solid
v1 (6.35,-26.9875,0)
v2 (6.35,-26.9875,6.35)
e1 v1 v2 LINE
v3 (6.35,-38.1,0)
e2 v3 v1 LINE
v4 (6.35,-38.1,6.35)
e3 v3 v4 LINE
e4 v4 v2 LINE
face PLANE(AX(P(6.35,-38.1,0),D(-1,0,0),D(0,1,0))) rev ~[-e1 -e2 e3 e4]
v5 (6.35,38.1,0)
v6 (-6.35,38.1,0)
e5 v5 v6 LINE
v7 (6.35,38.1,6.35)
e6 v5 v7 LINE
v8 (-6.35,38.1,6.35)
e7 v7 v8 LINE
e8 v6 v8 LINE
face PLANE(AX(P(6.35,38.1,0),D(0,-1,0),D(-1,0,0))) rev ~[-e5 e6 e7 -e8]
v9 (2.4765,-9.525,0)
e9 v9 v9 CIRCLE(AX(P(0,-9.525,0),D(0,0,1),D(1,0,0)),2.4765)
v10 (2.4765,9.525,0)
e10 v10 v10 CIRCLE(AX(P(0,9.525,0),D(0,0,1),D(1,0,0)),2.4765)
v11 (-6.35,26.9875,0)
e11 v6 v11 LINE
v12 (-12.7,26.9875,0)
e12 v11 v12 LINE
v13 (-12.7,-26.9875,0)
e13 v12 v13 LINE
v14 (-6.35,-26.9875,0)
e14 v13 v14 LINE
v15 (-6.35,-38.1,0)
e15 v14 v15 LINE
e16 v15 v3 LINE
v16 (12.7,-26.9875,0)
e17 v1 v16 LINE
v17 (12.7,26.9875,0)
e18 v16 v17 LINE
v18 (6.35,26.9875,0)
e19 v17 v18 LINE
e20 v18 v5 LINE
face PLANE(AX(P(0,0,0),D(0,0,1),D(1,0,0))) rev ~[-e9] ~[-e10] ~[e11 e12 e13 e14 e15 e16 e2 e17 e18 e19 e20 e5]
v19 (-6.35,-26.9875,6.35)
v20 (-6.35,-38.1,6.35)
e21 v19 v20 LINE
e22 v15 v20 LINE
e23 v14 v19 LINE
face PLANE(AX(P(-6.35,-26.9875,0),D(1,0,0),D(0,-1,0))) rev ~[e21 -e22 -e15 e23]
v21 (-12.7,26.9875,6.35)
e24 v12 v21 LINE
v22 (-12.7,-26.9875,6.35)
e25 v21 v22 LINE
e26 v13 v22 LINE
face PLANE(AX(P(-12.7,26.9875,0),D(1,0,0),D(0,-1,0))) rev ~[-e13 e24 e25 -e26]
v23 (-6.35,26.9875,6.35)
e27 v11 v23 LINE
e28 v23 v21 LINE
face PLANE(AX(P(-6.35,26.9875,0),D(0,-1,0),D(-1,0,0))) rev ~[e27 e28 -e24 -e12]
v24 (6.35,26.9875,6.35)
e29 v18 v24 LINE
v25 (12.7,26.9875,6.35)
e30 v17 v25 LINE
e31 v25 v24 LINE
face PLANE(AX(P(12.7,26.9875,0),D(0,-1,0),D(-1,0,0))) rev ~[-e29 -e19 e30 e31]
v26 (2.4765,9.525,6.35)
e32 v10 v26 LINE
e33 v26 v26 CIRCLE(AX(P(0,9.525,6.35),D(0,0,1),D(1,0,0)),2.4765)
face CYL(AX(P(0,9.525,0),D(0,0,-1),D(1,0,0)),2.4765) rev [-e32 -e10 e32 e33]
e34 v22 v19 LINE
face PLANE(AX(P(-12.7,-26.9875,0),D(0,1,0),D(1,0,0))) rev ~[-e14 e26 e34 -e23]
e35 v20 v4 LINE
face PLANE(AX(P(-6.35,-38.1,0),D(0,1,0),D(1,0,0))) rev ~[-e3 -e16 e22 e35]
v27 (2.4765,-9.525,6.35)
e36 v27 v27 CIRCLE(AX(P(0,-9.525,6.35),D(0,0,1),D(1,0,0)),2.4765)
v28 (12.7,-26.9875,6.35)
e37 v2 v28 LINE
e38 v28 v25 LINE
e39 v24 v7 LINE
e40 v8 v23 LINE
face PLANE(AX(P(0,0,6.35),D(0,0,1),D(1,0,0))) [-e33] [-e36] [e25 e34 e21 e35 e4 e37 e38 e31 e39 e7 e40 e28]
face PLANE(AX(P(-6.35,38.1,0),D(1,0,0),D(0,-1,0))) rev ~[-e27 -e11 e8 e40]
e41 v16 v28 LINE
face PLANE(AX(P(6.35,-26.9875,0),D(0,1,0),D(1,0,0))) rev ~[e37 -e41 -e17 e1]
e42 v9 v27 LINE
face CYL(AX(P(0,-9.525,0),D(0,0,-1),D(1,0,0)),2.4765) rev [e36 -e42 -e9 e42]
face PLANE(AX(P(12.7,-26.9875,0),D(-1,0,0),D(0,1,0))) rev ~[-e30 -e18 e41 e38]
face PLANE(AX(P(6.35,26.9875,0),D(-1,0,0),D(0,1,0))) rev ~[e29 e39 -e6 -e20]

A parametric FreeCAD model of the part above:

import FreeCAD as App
import Part
import Sketcher
from FreeCAD import Vector
Q = App.Units.Quantity


def add_polygon(sketch, points):
    """Adds a closed chain of lines whose ends are joined by coincident constraints."""
    first, n = sketch.GeometryCount, len(points)
    for a, b in zip(points, points[1:] + points[:1]):
        sketch.addGeometry(Part.LineSegment(App.Vector(*a, 0), App.Vector(*b, 0)), False)
    for i in range(n):
        sketch.addConstraint(Sketcher.Constraint("Coincident", first + i, 2, first + (i + 1) % n, 1))

doc = App.newDocument("Part")
body = doc.addObject("PartDesign::Body", "Body")

# Sketch on XY plane
sketch1 = body.newObject("Sketcher::SketchObject", "Sketch")
sketch1.AttachmentSupport = (doc.getObject("XY_Plane"), [""])
sketch1.MapMode = "FlatFace"
add_polygon(sketch1, [(-6.3, 27), (-12.7, 27), (-12.7, -27), (-6.3, -27), (-6.3, -38.1), (6.3, -38.1), (6.3, -27), (12.7, -27), (12.7, 27), (6.3, 27), (6.3, 38.1), (-6.3, 38.1)])  # lines 0-11
sketch1.addGeometry(Part.Circle(Vector(0, -9.5, 0), Vector(0, 0, 1), 2.5), False)  # 12
sketch1.addGeometry(Part.Circle(Vector(0, 9.5, 0), Vector(0, 0, 1), 2.5), False)  # 13
sketch1.addConstraint(Sketcher.Constraint("Horizontal", 0))
sketch1.addConstraint(Sketcher.Constraint("Vertical", 1))
sketch1.addConstraint(Sketcher.Constraint("Horizontal", 2))
sketch1.addConstraint(Sketcher.Constraint("Vertical", 3))
sketch1.addConstraint(Sketcher.Constraint("Horizontal", 4))
sketch1.addConstraint(Sketcher.Constraint("Vertical", 5))
sketch1.addConstraint(Sketcher.Constraint("Horizontal", 6))
sketch1.addConstraint(Sketcher.Constraint("Vertical", 7))
sketch1.addConstraint(Sketcher.Constraint("Horizontal", 8))
sketch1.addConstraint(Sketcher.Constraint("Vertical", 9))
sketch1.addConstraint(Sketcher.Constraint("Horizontal", 10))
sketch1.addConstraint(Sketcher.Constraint("Vertical", 11))
sketch1.addConstraint(Sketcher.Constraint("Equal", 12, 13))
sketch1.addConstraint(Sketcher.Constraint("Symmetric", 12, 3, 13, 3, -1, 1))
sketch1.addConstraint(Sketcher.Constraint("Symmetric", 0, 2, 6, 2, -1, 1))
sketch1.addConstraint(Sketcher.Constraint("Symmetric", 2, 2, 8, 2, -1, 1))
sketch1.addConstraint(Sketcher.Constraint("Symmetric", 4, 2, 10, 2, -1, 1))
sketch1.addConstraint(Sketcher.Constraint("Symmetric", 2, 2, 5, 2, -2))
sketch1.addConstraint(Sketcher.Constraint("PointOnObject", 12, 3, -2))
sketch1.addConstraint(Sketcher.Constraint("Diameter", 12, Q("0.195 in")))
sketch1.addConstraint(Sketcher.Constraint("DistanceX", 4, 1, 4, 2, Q("0.5 in")))
sketch1.addConstraint(Sketcher.Constraint("DistanceX", 0, 2, 7, 2, Q("1 in")))
sketch1.addConstraint(Sketcher.Constraint("DistanceY", 3, 2, -1, 1, Q("1.5 in")))
sketch1.addConstraint(Sketcher.Constraint("DistanceY", 1, 2, 1, 1, Q("2.125 in")))
sketch1.addConstraint(Sketcher.Constraint("DistanceY", 12, 3, 13, 3, Q("0.75 in")))
pad1 = body.newObject("PartDesign::Pad", "Pad")
pad1.Profile = sketch1
pad1.Length = Q("0.25 in")

doc.recompute()
